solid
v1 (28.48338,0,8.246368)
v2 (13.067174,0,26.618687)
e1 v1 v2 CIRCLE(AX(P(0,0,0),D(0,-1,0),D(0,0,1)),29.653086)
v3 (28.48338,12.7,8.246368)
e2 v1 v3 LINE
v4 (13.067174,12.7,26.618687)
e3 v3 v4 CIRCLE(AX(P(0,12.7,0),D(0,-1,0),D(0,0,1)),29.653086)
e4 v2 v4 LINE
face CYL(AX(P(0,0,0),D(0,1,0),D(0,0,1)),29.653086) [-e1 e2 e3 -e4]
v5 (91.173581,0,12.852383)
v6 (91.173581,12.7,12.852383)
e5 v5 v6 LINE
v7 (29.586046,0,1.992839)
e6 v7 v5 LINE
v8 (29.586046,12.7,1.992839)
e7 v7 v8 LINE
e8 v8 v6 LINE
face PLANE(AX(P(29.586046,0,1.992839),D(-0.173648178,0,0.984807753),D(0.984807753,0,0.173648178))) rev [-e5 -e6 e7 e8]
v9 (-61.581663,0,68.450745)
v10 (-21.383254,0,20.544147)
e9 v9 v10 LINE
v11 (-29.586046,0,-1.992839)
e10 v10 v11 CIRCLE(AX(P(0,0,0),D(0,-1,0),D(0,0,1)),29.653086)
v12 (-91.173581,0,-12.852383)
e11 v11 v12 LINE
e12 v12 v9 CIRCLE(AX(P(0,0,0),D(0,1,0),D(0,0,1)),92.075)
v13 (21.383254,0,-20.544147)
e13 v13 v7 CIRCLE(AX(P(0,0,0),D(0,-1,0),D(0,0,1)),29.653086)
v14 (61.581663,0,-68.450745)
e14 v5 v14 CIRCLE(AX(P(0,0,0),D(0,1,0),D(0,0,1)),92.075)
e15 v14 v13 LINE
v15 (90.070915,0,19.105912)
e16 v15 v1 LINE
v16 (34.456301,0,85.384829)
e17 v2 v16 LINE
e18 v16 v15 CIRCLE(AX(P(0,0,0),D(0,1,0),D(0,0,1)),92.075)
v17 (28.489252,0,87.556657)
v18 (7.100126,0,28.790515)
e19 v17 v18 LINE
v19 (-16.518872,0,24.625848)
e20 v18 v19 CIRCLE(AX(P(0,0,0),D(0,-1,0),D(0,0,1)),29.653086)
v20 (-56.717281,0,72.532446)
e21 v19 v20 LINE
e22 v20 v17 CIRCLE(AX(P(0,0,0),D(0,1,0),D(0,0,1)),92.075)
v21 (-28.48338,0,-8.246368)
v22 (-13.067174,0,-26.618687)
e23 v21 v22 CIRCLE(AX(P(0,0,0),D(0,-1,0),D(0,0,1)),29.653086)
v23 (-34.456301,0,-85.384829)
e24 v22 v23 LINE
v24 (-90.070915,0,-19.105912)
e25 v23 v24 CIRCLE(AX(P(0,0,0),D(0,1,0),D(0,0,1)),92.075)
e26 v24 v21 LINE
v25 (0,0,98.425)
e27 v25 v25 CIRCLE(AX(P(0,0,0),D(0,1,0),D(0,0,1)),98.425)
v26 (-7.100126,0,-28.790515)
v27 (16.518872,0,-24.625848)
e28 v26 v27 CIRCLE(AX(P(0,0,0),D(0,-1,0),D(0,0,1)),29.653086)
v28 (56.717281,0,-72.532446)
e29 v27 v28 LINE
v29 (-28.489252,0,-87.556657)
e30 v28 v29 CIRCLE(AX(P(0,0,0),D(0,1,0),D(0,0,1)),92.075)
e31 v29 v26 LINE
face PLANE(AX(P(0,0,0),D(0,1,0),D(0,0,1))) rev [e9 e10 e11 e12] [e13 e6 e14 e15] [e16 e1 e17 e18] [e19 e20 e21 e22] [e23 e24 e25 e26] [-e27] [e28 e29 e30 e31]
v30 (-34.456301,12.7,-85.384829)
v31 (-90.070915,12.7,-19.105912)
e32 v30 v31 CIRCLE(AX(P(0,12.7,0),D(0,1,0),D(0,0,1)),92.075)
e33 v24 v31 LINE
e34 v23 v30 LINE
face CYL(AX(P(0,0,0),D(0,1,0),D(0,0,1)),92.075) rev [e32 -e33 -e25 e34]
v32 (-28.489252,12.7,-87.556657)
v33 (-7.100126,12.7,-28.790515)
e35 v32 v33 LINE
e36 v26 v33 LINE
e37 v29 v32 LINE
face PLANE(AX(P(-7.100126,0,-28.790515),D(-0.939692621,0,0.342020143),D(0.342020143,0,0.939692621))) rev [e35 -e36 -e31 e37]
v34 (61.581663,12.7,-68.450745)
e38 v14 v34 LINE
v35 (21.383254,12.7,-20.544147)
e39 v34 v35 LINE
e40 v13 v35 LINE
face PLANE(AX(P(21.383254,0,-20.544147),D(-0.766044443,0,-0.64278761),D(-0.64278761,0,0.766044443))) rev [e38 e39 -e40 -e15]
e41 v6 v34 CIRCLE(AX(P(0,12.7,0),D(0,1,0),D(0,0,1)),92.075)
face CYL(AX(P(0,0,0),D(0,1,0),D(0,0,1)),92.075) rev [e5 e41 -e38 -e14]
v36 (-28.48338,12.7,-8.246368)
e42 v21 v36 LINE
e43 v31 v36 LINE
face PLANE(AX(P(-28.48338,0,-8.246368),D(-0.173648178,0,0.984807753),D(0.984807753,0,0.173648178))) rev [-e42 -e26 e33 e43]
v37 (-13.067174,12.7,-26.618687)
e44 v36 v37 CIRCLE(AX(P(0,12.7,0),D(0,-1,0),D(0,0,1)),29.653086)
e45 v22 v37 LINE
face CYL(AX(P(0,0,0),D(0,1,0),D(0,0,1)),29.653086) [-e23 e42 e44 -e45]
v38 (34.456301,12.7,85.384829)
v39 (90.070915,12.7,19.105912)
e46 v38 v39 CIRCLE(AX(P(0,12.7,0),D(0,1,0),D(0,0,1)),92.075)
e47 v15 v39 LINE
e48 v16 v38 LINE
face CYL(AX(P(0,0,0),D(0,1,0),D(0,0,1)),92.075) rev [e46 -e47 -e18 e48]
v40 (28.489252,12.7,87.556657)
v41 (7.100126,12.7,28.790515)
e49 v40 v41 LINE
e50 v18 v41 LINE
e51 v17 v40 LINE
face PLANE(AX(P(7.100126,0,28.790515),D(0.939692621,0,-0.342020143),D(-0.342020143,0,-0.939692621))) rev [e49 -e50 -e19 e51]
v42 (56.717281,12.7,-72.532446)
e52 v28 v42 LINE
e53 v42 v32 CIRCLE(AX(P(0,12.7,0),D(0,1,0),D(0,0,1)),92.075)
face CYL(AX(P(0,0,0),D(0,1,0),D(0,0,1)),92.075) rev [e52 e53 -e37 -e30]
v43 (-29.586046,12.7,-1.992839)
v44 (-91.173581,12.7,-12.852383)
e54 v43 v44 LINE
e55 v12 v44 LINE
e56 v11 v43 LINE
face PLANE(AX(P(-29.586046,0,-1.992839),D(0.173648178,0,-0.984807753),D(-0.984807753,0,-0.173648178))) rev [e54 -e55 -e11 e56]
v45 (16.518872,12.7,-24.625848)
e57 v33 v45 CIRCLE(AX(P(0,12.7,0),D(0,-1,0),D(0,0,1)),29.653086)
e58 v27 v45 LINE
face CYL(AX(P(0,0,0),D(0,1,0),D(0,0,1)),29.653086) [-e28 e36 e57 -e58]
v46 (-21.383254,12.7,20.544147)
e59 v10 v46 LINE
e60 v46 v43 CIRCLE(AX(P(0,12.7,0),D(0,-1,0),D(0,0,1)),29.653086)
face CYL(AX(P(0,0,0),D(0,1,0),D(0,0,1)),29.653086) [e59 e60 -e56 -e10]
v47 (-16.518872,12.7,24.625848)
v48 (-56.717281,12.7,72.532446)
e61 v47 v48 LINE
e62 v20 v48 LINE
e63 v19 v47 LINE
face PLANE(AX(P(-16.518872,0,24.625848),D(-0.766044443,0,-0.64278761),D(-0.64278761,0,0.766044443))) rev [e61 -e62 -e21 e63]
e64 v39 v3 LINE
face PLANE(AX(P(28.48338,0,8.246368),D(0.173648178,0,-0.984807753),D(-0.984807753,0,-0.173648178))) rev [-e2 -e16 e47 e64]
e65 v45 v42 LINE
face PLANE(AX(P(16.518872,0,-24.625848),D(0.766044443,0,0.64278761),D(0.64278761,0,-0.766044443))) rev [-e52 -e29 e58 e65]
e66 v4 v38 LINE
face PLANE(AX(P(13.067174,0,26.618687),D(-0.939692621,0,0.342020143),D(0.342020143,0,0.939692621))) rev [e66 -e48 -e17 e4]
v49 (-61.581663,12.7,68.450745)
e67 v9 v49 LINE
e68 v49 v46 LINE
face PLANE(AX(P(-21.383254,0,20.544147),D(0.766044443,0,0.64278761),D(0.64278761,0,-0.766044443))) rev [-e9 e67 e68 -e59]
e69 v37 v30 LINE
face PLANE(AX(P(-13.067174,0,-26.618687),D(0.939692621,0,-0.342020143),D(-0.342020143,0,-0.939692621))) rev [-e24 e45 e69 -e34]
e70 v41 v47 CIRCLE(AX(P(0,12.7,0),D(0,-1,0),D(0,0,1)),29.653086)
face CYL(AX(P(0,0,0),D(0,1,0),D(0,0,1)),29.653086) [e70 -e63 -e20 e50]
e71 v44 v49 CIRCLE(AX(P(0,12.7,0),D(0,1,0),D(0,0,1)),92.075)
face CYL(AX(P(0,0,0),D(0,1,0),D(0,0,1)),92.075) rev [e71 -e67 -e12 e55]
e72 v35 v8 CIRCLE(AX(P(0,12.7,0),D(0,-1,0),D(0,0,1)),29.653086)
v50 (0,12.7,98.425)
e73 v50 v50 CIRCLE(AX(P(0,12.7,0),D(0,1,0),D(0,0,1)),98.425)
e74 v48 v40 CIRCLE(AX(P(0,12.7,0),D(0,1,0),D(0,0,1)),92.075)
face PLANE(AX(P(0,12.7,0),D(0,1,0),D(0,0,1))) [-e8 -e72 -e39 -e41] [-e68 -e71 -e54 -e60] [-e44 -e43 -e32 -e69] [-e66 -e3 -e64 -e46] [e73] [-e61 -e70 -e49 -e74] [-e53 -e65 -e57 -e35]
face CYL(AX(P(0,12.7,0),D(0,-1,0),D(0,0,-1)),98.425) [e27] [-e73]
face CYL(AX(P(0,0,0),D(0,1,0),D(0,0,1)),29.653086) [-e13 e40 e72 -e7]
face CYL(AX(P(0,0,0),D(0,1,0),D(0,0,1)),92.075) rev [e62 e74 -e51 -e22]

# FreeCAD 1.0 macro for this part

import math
import FreeCAD as App
import Part
import Sketcher
Q = App.Units.Quantity

doc = App.newDocument("Part")
params = doc.addObject("Spreadsheet::Sheet", "Params")
for row, (alias, value) in enumerate([
    ("sketch1_diameter", "7.75 in"),
    ("pad1_length", "0.5 in"),
    ("sketch2_radius", "3.625 in"),
], start=1):
    params.set(f"A{row}", alias)
    params.set(f"B{row}", "=" + value)
    params.setAlias(f"B{row}", alias)

body = doc.addObject("PartDesign::Body", "Body")

# Sketch on XZ plane
sketch1 = body.newObject("Sketcher::SketchObject", "Sketch")
sketch1.AttachmentSupport = (doc.getObject("XZ_Plane"), [""])
sketch1.MapMode = "FlatFace"
sketch1.addGeometry(Part.Circle(App.Vector(0, 0, 0), App.Vector(0, 0, 1), 98), False)
sketch1.addConstraint([
    Sketcher.Constraint("Coincident", 0, 3, -1, 1),
    Sketcher.Constraint("Diameter", 0, Q("7.75 in")),
])
sketch1.setExpression("Constraints[1]", "Params.sketch1_diameter")
pad1 = body.newObject("PartDesign::Pad", "Pad")
pad1.Profile = sketch1
pad1.setExpression("Length", "Params.pad1_length")
pad1.Reversed = True

# Sketch on XZ plane
sketch2 = body.newObject("Sketcher::SketchObject", "Sketch001")
sketch2.AttachmentSupport = (doc.getObject("XZ_Plane"), [""])
sketch2.MapMode = "FlatFace"
sketch2.AttachmentOffset = App.Placement(App.Vector(0, 0, -0.5 * 25.4), App.Rotation())
sketch2.addGeometry([
    Part.LineSegment(App.Vector(62, -68, 0), App.Vector(21, -21, 0)),  # 0
    Part.ArcOfCircle(Part.Circle(App.Vector(0, 0, 0), App.Vector(0, 0, 1), 30), math.radians(-44), math.radians(4)),  # 1
    Part.LineSegment(App.Vector(30, 2, 0), App.Vector(91, 13, 0)),  # 2
    Part.ArcOfCircle(Part.Circle(App.Vector(0, 0, 0), App.Vector(0, 0, 1), 92), math.radians(-48), math.radians(8)),  # 3
    Part.LineSegment(App.Vector(17, -25, 0), App.Vector(57, -73, 0)),  # 4
    Part.ArcOfCircle(Part.Circle(App.Vector(0, 0, 0), App.Vector(0, 0, 1), 92), math.radians(-108), math.radians(-52)),  # 5
    Part.LineSegment(App.Vector(-28, -88, 0), App.Vector(-7, -29, 0)),  # 6
    Part.ArcOfCircle(Part.Circle(App.Vector(0, 0, 0), App.Vector(0, 0, 1), 30), math.radians(-104), math.radians(-56)),  # 7
    Part.LineSegment(App.Vector(-13, -27, 0), App.Vector(-34, -85, 0)),  # 8
    Part.ArcOfCircle(Part.Circle(App.Vector(0, 0, 0), App.Vector(0, 0, 1), 92), math.radians(-168), math.radians(-112)),  # 9
    Part.LineSegment(App.Vector(-90, -19, 0), App.Vector(-28, -8, 0)),  # 10
    Part.ArcOfCircle(Part.Circle(App.Vector(0, 0, 0), App.Vector(0, 0, 1), 30), math.radians(-164), math.radians(-116)),  # 11
    Part.LineSegment(App.Vector(-30, -2, 0), App.Vector(-91, -13, 0)),  # 12
    Part.ArcOfCircle(Part.Circle(App.Vector(0, 0, 0), App.Vector(0, 0, 1), 92), math.radians(132), math.radians(188)),  # 13
    Part.LineSegment(App.Vector(-62, 68, 0), App.Vector(-21, 21, 0)),  # 14
    Part.ArcOfCircle(Part.Circle(App.Vector(0, 0, 0), App.Vector(0, 0, 1), 30), math.radians(136), math.radians(184)),  # 15
    Part.LineSegment(App.Vector(-17, 25, 0), App.Vector(-57, 73, 0)),  # 16
    Part.ArcOfCircle(Part.Circle(App.Vector(0, 0, 0), App.Vector(0, 0, 1), 92), math.radians(72), math.radians(128)),  # 17
    Part.LineSegment(App.Vector(28, 88, 0), App.Vector(7, 29, 0)),  # 18
    Part.ArcOfCircle(Part.Circle(App.Vector(0, 0, 0), App.Vector(0, 0, 1), 30), math.radians(76), math.radians(124)),  # 19
    Part.LineSegment(App.Vector(13, 27, 0), App.Vector(34, 85, 0)),  # 20
    Part.ArcOfCircle(Part.Circle(App.Vector(0, 0, 0), App.Vector(0, 0, 1), 92), math.radians(12), math.radians(68)),  # 21
    Part.LineSegment(App.Vector(90, 19, 0), App.Vector(28, 8, 0)),  # 22
    Part.ArcOfCircle(Part.Circle(App.Vector(0, 0, 0), App.Vector(0, 0, 1), 30), math.radians(16), math.radians(64)),  # 23
], False)
sketch2.addConstraint([
    Sketcher.Constraint("Coincident", 0, 2, 1, 1),
    Sketcher.Constraint("Coincident", 1, 2, 2, 1),
    Sketcher.Constraint("Coincident", 2, 2, 3, 2),
    Sketcher.Constraint("Coincident", 3, 1, 0, 1),
    Sketcher.Constraint("Coincident", 4, 2, 5, 2),
    Sketcher.Constraint("Coincident", 5, 1, 6, 1),
    Sketcher.Constraint("Coincident", 6, 2, 7, 1),
    Sketcher.Constraint("Coincident", 7, 2, 4, 1),
    Sketcher.Constraint("Coincident", 8, 2, 9, 2),
    Sketcher.Constraint("Coincident", 9, 1, 10, 1),
    Sketcher.Constraint("Coincident", 10, 2, 11, 1),
    Sketcher.Constraint("Coincident", 11, 2, 8, 1),
    Sketcher.Constraint("Coincident", 12, 2, 13, 2),
    Sketcher.Constraint("Coincident", 13, 1, 14, 1),
    Sketcher.Constraint("Coincident", 14, 2, 15, 1),
    Sketcher.Constraint("Coincident", 15, 2, 12, 1),
    Sketcher.Constraint("Coincident", 16, 2, 17, 2),
    Sketcher.Constraint("Coincident", 17, 1, 18, 1),
    Sketcher.Constraint("Coincident", 18, 2, 19, 1),
    Sketcher.Constraint("Coincident", 19, 2, 16, 1),
    Sketcher.Constraint("Coincident", 20, 2, 21, 2),
    Sketcher.Constraint("Coincident", 21, 1, 22, 1),
    Sketcher.Constraint("Coincident", 22, 2, 23, 1),
    Sketcher.Constraint("Coincident", 23, 2, 20, 1),
    Sketcher.Constraint("Coincident", 1, 3, -1, 1),
    Sketcher.Constraint("Coincident", 3, 3, -1, 1),
    Sketcher.Constraint("Coincident", 5, 3, -1, 1),
    Sketcher.Constraint("Coincident", 7, 3, -1, 1),
    Sketcher.Constraint("Coincident", 9, 3, -1, 1),
    Sketcher.Constraint("Coincident", 11, 3, -1, 1),
    Sketcher.Constraint("Coincident", 13, 3, -1, 1),
    Sketcher.Constraint("Coincident", 15, 3, -1, 1),
    Sketcher.Constraint("Coincident", 17, 3, -1, 1),
    Sketcher.Constraint("Coincident", 19, 3, -1, 1),
    Sketcher.Constraint("Coincident", 21, 3, -1, 1),
    Sketcher.Constraint("Coincident", 23, 3, -1, 1),
    Sketcher.Constraint("Equal", 3, 5),
    Sketcher.Constraint("Equal", 1, 7),
    Sketcher.Constraint("Equal", 5, 9),
    Sketcher.Constraint("Equal", 7, 11),
    Sketcher.Constraint("Equal", 9, 13),
    Sketcher.Constraint("Equal", 11, 15),
    Sketcher.Constraint("Equal", 13, 17),
    Sketcher.Constraint("Equal", 15, 19),
    Sketcher.Constraint("Equal", 17, 21),
    Sketcher.Constraint("Equal", 19, 23),
    Sketcher.Constraint("Parallel", 0, 4),
    Sketcher.Constraint("Parallel", 6, 8),
    Sketcher.Constraint("Parallel", 2, 10),
    Sketcher.Constraint("Parallel", 10, 12),
    Sketcher.Constraint("Parallel", 4, 14),
    Sketcher.Constraint("Parallel", 14, 16),
    Sketcher.Constraint("Parallel", 8, 18),
    Sketcher.Constraint("Parallel", 18, 20),
    Sketcher.Constraint("Parallel", 12, 22),
    Sketcher.Constraint("Equal", 0, 2),
    Sketcher.Constraint("Equal", 2, 4),
    Sketcher.Constraint("Equal", 4, 6),
    Sketcher.Constraint("Equal", 6, 8),
    Sketcher.Constraint("Equal", 8, 10),
    Sketcher.Constraint("Equal", 10, 12),
    Sketcher.Constraint("Equal", 12, 14),
    Sketcher.Constraint("Equal", 14, 16),
    Sketcher.Constraint("Equal", 16, 18),
    Sketcher.Constraint("Equal", 18, 20),
    Sketcher.Constraint("Equal", 20, 22),
    Sketcher.Constraint("Angle", 0, Q("130 deg")),
    Sketcher.Constraint("Angle", 2, Q("10 deg")),
    Sketcher.Constraint("Angle", 6, Q("70 deg")),
    Sketcher.Constraint("Radius", 3, Q("3.625 in")),
    Sketcher.Constraint("Radius", 1, 29.653086),
    Sketcher.Constraint("DistanceX", 8, 2, -1, 1, 34.456301),
])
sketch2.setExpression("Constraints[69]", "Params.sketch2_radius")
pocket1 = body.newObject("PartDesign::Pocket", "Pocket")
pocket1.Profile = sketch2
pocket1.Type = "ThroughAll"
pocket1.Reversed = True

doc.recompute()
